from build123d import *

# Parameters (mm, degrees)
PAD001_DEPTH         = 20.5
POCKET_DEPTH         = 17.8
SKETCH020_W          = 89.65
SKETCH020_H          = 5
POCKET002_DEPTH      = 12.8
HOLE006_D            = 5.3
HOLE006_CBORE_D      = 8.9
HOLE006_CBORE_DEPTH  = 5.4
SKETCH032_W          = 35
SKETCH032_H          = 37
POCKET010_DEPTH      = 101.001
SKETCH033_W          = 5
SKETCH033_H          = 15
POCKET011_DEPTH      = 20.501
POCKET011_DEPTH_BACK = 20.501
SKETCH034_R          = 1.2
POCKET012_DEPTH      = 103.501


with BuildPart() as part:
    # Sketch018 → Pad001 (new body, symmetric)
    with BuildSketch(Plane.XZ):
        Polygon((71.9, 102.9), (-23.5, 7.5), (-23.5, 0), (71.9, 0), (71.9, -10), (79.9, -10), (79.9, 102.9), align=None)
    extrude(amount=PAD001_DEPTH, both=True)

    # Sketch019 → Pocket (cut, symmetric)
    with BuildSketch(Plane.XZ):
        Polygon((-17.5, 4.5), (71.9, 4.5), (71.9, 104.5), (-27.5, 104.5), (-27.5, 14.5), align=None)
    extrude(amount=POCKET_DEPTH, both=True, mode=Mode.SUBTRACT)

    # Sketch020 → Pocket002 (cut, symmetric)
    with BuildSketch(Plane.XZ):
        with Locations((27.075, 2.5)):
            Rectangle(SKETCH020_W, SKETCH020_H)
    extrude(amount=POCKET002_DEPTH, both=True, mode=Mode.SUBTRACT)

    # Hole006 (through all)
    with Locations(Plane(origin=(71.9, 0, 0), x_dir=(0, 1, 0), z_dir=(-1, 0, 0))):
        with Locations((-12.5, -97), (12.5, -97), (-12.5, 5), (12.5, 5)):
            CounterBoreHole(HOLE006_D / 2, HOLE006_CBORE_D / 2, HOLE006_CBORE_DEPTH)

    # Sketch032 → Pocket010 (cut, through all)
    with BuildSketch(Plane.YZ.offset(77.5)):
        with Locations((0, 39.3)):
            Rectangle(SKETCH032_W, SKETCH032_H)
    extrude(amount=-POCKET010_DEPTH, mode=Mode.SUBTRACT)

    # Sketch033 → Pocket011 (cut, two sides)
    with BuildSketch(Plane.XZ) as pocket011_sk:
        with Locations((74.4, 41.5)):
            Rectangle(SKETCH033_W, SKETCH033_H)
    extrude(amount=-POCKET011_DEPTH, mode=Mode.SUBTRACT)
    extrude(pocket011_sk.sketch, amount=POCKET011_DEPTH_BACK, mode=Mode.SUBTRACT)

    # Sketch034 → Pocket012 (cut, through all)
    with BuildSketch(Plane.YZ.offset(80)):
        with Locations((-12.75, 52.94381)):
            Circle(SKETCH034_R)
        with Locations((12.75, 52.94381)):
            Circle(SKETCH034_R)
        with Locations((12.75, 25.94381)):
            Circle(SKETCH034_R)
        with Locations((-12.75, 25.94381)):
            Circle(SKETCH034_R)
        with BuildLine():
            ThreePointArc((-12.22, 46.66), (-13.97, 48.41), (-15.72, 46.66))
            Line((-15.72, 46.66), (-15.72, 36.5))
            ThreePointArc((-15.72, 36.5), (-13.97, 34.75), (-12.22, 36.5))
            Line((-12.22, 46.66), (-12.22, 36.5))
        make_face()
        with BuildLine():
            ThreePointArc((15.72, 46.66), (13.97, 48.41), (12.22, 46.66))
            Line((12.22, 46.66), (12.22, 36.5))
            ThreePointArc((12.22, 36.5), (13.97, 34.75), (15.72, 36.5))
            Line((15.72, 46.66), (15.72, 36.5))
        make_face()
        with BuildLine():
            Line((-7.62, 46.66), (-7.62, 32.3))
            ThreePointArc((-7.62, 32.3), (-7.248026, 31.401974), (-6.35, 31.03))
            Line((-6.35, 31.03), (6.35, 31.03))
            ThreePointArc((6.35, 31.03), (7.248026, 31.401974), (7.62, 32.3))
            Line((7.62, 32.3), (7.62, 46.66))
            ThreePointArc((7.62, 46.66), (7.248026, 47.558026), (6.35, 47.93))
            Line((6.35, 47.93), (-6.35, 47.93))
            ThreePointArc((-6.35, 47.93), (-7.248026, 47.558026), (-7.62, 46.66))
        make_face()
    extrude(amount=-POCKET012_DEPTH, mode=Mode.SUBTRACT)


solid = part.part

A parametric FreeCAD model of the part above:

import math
import FreeCAD as App
import Part
import Sketcher
Q = App.Units.Quantity

doc = App.newDocument("Part")
body = doc.addObject("PartDesign::Body", "Body")

sketch1 = doc.addObject("Sketcher::SketchObject", "Sketch")
body.addObject(sketch1)
sketch1.AttachmentSupport = (doc.XZ_Plane, [""])
sketch1.MapMode = "FlatFace"
sketch1.addGeometry([
    Part.LineSegment(App.Vector(71.9, 102.9, 0), App.Vector(-23.5, 7.5, 0)),
    Part.LineSegment(App.Vector(-23.5, 7.5, 0), App.Vector(-23.5, 0, 0)),
    Part.LineSegment(App.Vector(-23.5, 0, 0), App.Vector(71.9, 0, 0)),
    Part.LineSegment(App.Vector(71.9, 0, 0), App.Vector(71.9, -10, 0)),
    Part.LineSegment(App.Vector(71.9, -10, 0), App.Vector(79.9, -10, 0)),
    Part.LineSegment(App.Vector(79.9, -10, 0), App.Vector(79.9, 102.9, 0)),
    Part.LineSegment(App.Vector(79.9, 102.9, 0), App.Vector(71.9, 102.9, 0)),
], False)
sketch1.addConstraint([
    Sketcher.Constraint("Coincident", 0, 2, 1, 1),
    Sketcher.Constraint("Coincident", 1, 2, 2, 1),
    Sketcher.Constraint("Coincident", 2, 2, 3, 1),
    Sketcher.Constraint("Coincident", 3, 2, 4, 1),
    Sketcher.Constraint("Coincident", 4, 2, 5, 1),
    Sketcher.Constraint("Coincident", 5, 2, 6, 1),
    Sketcher.Constraint("Coincident", 6, 2, 0, 1),
    Sketcher.Constraint("Vertical", 1),
    Sketcher.Constraint("Horizontal", 2),
    Sketcher.Constraint("Vertical", 3),
    Sketcher.Constraint("Horizontal", 4),
    Sketcher.Constraint("Vertical", 5),
    Sketcher.Constraint("Horizontal", 6),
    Sketcher.Constraint("PointOnObject", 1, 2, -1),
    Sketcher.Constraint("Vertical", 3, 2, 6, 2),
    Sketcher.Constraint("DistanceX", 4, 1, 4, 2, 8.0),
    Sketcher.Constraint("DistanceY", 3, 2, 3, 1, 10.0),
    Sketcher.Constraint("Angle", 0, Q("-135 deg")),
    Sketcher.Constraint("DistanceX", 2, 1, 2, 2, 95.4),
    Sketcher.Constraint("DistanceY", 1, 2, 1, 1, 7.5),
    Sketcher.Constraint("DistanceX", 0, 2, -1, 1, 23.5),
])
pad1 = doc.addObject("PartDesign::Pad", "Pad")
body.addObject(pad1)
pad1.Profile = sketch1
pad1.Length = 41
pad1.Midplane = True

sketch2 = doc.addObject("Sketcher::SketchObject", "Sketch001")
body.addObject(sketch2)
sketch2.AttachmentSupport = (doc.XZ_Plane, [""])
sketch2.MapMode = "FlatFace"
sketch2.addGeometry([
    Part.LineSegment(App.Vector(-17.5, 4.5, 0), App.Vector(71.9, 4.5, 0)),
    Part.LineSegment(App.Vector(71.9, 4.5, 0), App.Vector(71.9, 104.5, 0)),
    Part.LineSegment(App.Vector(71.9, 104.5, 0), App.Vector(-27.5, 104.5, 0)),
    Part.LineSegment(App.Vector(-27.5, 104.5, 0), App.Vector(-27.5, 14.5, 0)),
    Part.LineSegment(App.Vector(-27.5, 14.5, 0), App.Vector(-17.5, 4.5, 0)),
], False)
sketch2.addConstraint([
    Sketcher.Constraint("Coincident", 0, 2, 1, 1),
    Sketcher.Constraint("Coincident", 1, 2, 2, 1),
    Sketcher.Constraint("Coincident", 2, 2, 3, 1),
    Sketcher.Constraint("Coincident", 3, 2, 4, 1),
    Sketcher.Constraint("Coincident", 4, 2, 0, 1),
    Sketcher.Constraint("Horizontal", 0),
    Sketcher.Constraint("Vertical", 1),
    Sketcher.Constraint("Horizontal", 2),
    Sketcher.Constraint("Vertical", 3),
    Sketcher.Constraint("DistanceY", 1, 1, 1, 2, 100.0),
    Sketcher.Constraint("DistanceY", 3, 2, 3, 1, 90.0),
    Sketcher.Constraint("Angle", 4, Q("-45 deg")),
    Sketcher.Constraint("DistanceX", 0, 1, 0, 2, 89.4),
    Sketcher.Constraint("DistanceX", -1, 1, 0, 2, 71.9),
    Sketcher.Constraint("DistanceY", -1, 1, 0, 2, 4.5),
])
pocket1 = doc.addObject("PartDesign::Pocket", "Pocket")
body.addObject(pocket1)
pocket1.Profile = sketch2
pocket1.Length = 35.6
pocket1.Midplane = True

sketch3 = doc.addObject("Sketcher::SketchObject", "Sketch002")
body.addObject(sketch3)
sketch3.AttachmentSupport = (doc.XZ_Plane, [""])
sketch3.MapMode = "FlatFace"
sketch3.addGeometry([
    Part.LineSegment(App.Vector(-17.75, 5, 0), App.Vector(-17.75, 0, 0)),
    Part.LineSegment(App.Vector(-17.75, 0, 0), App.Vector(71.9, 0, 0)),
    Part.LineSegment(App.Vector(71.9, 0, 0), App.Vector(71.9, 5, 0)),
    Part.LineSegment(App.Vector(71.9, 5, 0), App.Vector(-17.75, 5, 0)),
], False)
sketch3.addConstraint([
    Sketcher.Constraint("Coincident", 0, 2, 1, 1),
    Sketcher.Constraint("Coincident", 1, 2, 2, 1),
    Sketcher.Constraint("Coincident", 2, 2, 3, 1),
    Sketcher.Constraint("Coincident", 3, 2, 0, 1),
    Sketcher.Constraint("Vertical", 0),
    Sketcher.Constraint("Horizontal", 1),
    Sketcher.Constraint("Vertical", 2),
    Sketcher.Constraint("Horizontal", 3),
    Sketcher.Constraint("PointOnObject", 0, 2, -1),
    Sketcher.Constraint("DistanceY", 0, 2, 0, 1, 5.0),
    Sketcher.Constraint("DistanceX", 1, 1, 1, 2, 89.65),
    Sketcher.Constraint("DistanceX", -1, 1, 1, 2, 71.9),
])
pocket2 = doc.addObject("PartDesign::Pocket", "Pocket001")
body.addObject(pocket2)
pocket2.Profile = sketch3
pocket2.Length = 25.6
pocket2.Midplane = True

sketch4 = doc.addObject("Sketcher::SketchObject", "Sketch003")
body.addObject(sketch4)
sketch4.AttachmentSupport = (doc.YZ_Plane, [""])
sketch4.MapMode = "FlatFace"
sketch4.AttachmentOffset = App.Placement(App.Vector(0, 0, 71.9), App.Rotation())
sketch4.addGeometry([
    Part.Circle(App.Vector(-12.5, 97, 0), App.Vector(0, 0, 1), 2.65),
    Part.Circle(App.Vector(12.5, 97, 0), App.Vector(0, 0, 1), 2.65),
    Part.Circle(App.Vector(-12.5, -5, 0), App.Vector(0, 0, 1), 2.65),
    Part.Circle(App.Vector(12.5, -5, 0), App.Vector(0, 0, 1), 2.65),
], False)
sketch4.addConstraint([
    Sketcher.Constraint("Equal", 0, 1),
    Sketcher.Constraint("Equal", 1, 2),
    Sketcher.Constraint("Equal", 2, 3),
    Sketcher.Constraint("Symmetric", 0, 3, 1, 3, -2),
    Sketcher.Constraint("Symmetric", 2, 3, 3, 3, -2),
    Sketcher.Constraint("Vertical", 0, 3, 2, 3),
    Sketcher.Constraint("Diameter", 0, 5.3),
    Sketcher.Constraint("DistanceY", -1, 1, 0, 3, 97.0),
    Sketcher.Constraint("DistanceY", 2, 3, -1, 1, 5.0),
    Sketcher.Constraint("DistanceX", 0, 3, 1, 3, 25.0),
])
doc.recompute()
hole = doc.addObject("PartDesign::Hole", "Hole")
body.addObject(hole)
hole.Profile = sketch4
hole.ThreadType = "None"
hole.Diameter = 5.3
hole.DepthType = "ThroughAll"
hole.HoleCutType = "Counterbore"
hole.HoleCutDiameter = 8.9
hole.HoleCutDepth = 5.4
hole.Reversed = True

sketch5 = doc.addObject("Sketcher::SketchObject", "Sketch004")
body.addObject(sketch5)
sketch5.AttachmentSupport = (doc.YZ_Plane, [""])
sketch5.MapMode = "FlatFace"
sketch5.AttachmentOffset = App.Placement(App.Vector(0, 0, 77.5), App.Rotation())
sketch5.addGeometry([
    Part.LineSegment(App.Vector(-17.5, 57.8, 0), App.Vector(-17.5, 20.8, 0)),
    Part.LineSegment(App.Vector(-17.5, 20.8, 0), App.Vector(17.5, 20.8, 0)),
    Part.LineSegment(App.Vector(17.5, 20.8, 0), App.Vector(17.5, 57.8, 0)),
    Part.LineSegment(App.Vector(17.5, 57.8, 0), App.Vector(-17.5, 57.8, 0)),
], False)
sketch5.addConstraint([
    Sketcher.Constraint("Coincident", 0, 2, 1, 1),
    Sketcher.Constraint("Coincident", 1, 2, 2, 1),
    Sketcher.Constraint("Coincident", 2, 2, 3, 1),
    Sketcher.Constraint("Coincident", 3, 2, 0, 1),
    Sketcher.Constraint("Vertical", 0),
    Sketcher.Constraint("Horizontal", 1),
    Sketcher.Constraint("Vertical", 2),
    Sketcher.Constraint("Horizontal", 3),
    Sketcher.Constraint("DistanceX", 1, 1, 1, 2, 35.0),
    Sketcher.Constraint("DistanceY", 0, 2, 0, 1, 37.0),
    Sketcher.Constraint("DistanceX", 0, 2, -1, 1, 17.5),
    Sketcher.Constraint("DistanceY", -1, 1, 0, 2, 20.8),
])
pocket3 = doc.addObject("PartDesign::Pocket", "Pocket002")
body.addObject(pocket3)
pocket3.Profile = sketch5
pocket3.Type = "ThroughAll"

sketch6 = doc.addObject("Sketcher::SketchObject", "Sketch005")
body.addObject(sketch6)
sketch6.AttachmentSupport = (doc.XZ_Plane, [""])
sketch6.MapMode = "FlatFace"
sketch6.addGeometry([
    Part.LineSegment(App.Vector(71.9, 49, 0), App.Vector(71.9, 34, 0)),
    Part.LineSegment(App.Vector(71.9, 34, 0), App.Vector(76.9, 34, 0)),
    Part.LineSegment(App.Vector(76.9, 34, 0), App.Vector(76.9, 49, 0)),
    Part.LineSegment(App.Vector(76.9, 49, 0), App.Vector(71.9, 49, 0)),
], False)
sketch6.addConstraint([
    Sketcher.Constraint("Coincident", 0, 2, 1, 1),
    Sketcher.Constraint("Coincident", 1, 2, 2, 1),
    Sketcher.Constraint("Coincident", 2, 2, 3, 1),
    Sketcher.Constraint("Coincident", 3, 2, 0, 1),
    Sketcher.Constraint("Vertical", 0),
    Sketcher.Constraint("Horizontal", 1),
    Sketcher.Constraint("Vertical", 2),
    Sketcher.Constraint("Horizontal", 3),
    Sketcher.Constraint("DistanceX", 1, 1, 1, 2, 5.0),
    Sketcher.Constraint("DistanceY", 0, 2, 0, 1, 15.0),
    Sketcher.Constraint("DistanceY", -1, 1, 0, 2, 34.0),
    Sketcher.Constraint("DistanceX", -1, 1, 0, 2, 71.9),
])
pocket4 = doc.addObject("PartDesign::Pocket", "Pocket003")
body.addObject(pocket4)
pocket4.Profile = sketch6
pocket4.Type = "ThroughAll"
pocket4.Midplane = True

sketch7 = doc.addObject("Sketcher::SketchObject", "Sketch006")
body.addObject(sketch7)
sketch7.AttachmentSupport = (doc.YZ_Plane, [""])
sketch7.MapMode = "FlatFace"
sketch7.AttachmentOffset = App.Placement(App.Vector(0, 0, 80), App.Rotation())
sketch7.addGeometry([
    Part.Circle(App.Vector(-12.75, 52.94381, 0), App.Vector(0, 0, 1), 1.2),
    Part.Circle(App.Vector(12.75, 52.94381, 0), App.Vector(0, 0, 1), 1.2),
    Part.Circle(App.Vector(12.75, 25.94381, 0), App.Vector(0, 0, 1), 1.2),
    Part.Circle(App.Vector(-12.75, 25.94381, 0), App.Vector(0, 0, 1), 1.2),
    Part.ArcOfCircle(Part.Circle(App.Vector(-13.97, 46.66, 0), App.Vector(0, 0, 1), 1.75), math.radians(0), math.radians(180)),
    Part.LineSegment(App.Vector(-15.72, 46.66, 0), App.Vector(-15.72, 36.5, 0)),
    Part.ArcOfCircle(Part.Circle(App.Vector(-13.97, 36.5, 0), App.Vector(0, 0, 1), 1.75), math.radians(180), math.radians(360)),
    Part.LineSegment(App.Vector(-12.22, 36.5, 0), App.Vector(-12.22, 46.66, 0)),
    Part.ArcOfCircle(Part.Circle(App.Vector(13.97, 46.66, 0), App.Vector(0, 0, 1), 1.75), math.radians(0), math.radians(180)),
    Part.LineSegment(App.Vector(12.22, 46.66, 0), App.Vector(12.22, 36.5, 0)),
    Part.ArcOfCircle(Part.Circle(App.Vector(13.97, 36.5, 0), App.Vector(0, 0, 1), 1.75), math.radians(180), math.radians(360)),
    Part.LineSegment(App.Vector(15.72, 36.5, 0), App.Vector(15.72, 46.66, 0)),
    Part.LineSegment(App.Vector(-7.62, 46.66, 0), App.Vector(-7.62, 32.3, 0)),
    Part.ArcOfCircle(Part.Circle(App.Vector(-6.350001, 32.299999, 0), App.Vector(0, 0, 1), 1.269999), math.radians(179.99994), math.radians(270.00006)),
    Part.LineSegment(App.Vector(-6.35, 31.03, 0), App.Vector(6.35, 31.03, 0)),
    Part.ArcOfCircle(Part.Circle(App.Vector(6.350001, 32.299999, 0), App.Vector(0, 0, 1), 1.269999), math.radians(-90.00006), math.radians(0.00006)),
    Part.LineSegment(App.Vector(7.62, 32.3, 0), App.Vector(7.62, 46.66, 0)),
    Part.ArcOfCircle(Part.Circle(App.Vector(6.350001, 46.660001, 0), App.Vector(0, 0, 1), 1.269999), math.radians(-0.00006), math.radians(90.00006)),
    Part.LineSegment(App.Vector(6.35, 47.93, 0), App.Vector(-6.35, 47.93, 0)),
    Part.ArcOfCircle(Part.Circle(App.Vector(-6.350001, 46.660001, 0), App.Vector(0, 0, 1), 1.269999), math.radians(89.99994), math.radians(180.00006)),
], False)
sketch7.addConstraint([
    Sketcher.Constraint("Tangent", 4, 2, 5, 1),
    Sketcher.Constraint("Tangent", 5, 2, 6, 1),
    Sketcher.Constraint("Tangent", 6, 2, 7, 1),
    Sketcher.Constraint("Tangent", 7, 2, 4, 1),
    Sketcher.Constraint("Tangent", 8, 2, 9, 1),
    Sketcher.Constraint("Tangent", 9, 2, 10, 1),
    Sketcher.Constraint("Tangent", 10, 2, 11, 1),
    Sketcher.Constraint("Tangent", 11, 2, 8, 1),
    Sketcher.Constraint("Tangent", 12, 2, 13, 1),
    Sketcher.Constraint("Tangent", 13, 2, 14, 1),
    Sketcher.Constraint("Tangent", 14, 2, 15, 1),
    Sketcher.Constraint("Tangent", 15, 2, 16, 1),
    Sketcher.Constraint("Tangent", 16, 2, 17, 1),
    Sketcher.Constraint("Tangent", 17, 2, 18, 1),
    Sketcher.Constraint("Tangent", 18, 2, 19, 1),
    Sketcher.Constraint("Tangent", 19, 2, 12, 1),
    Sketcher.Constraint("Vertical", 5),
    Sketcher.Constraint("Vertical", 7),
    Sketcher.Constraint("Vertical", 9),
    Sketcher.Constraint("Vertical", 11),
    Sketcher.Constraint("Vertical", 12),
    Sketcher.Constraint("Horizontal", 14),
    Sketcher.Constraint("Vertical", 16),
    Sketcher.Constraint("Horizontal", 18),
    Sketcher.Constraint("Equal", 0, 1),
    Sketcher.Constraint("Equal", 1, 2),
    Sketcher.Constraint("Equal", 2, 3),
    Sketcher.Constraint("Equal", 6, 8),
    Sketcher.Constraint("Equal", 13, 15),
    Sketcher.Constraint("Equal", 15, 17),
    Sketcher.Constraint("Equal", 17, 19),
    Sketcher.Constraint("Symmetric", 0, 3, 1, 3, -2),
    Sketcher.Constraint("Symmetric", 2, 3, 3, 3, -2),
    Sketcher.Constraint("Symmetric", 4, 3, 8, 3, -2),
    Sketcher.Constraint("Horizontal", 6, 3, 10, 3),
    Sketcher.Constraint("Horizontal", 8, 3, 17, 3),
    Sketcher.Constraint("Vertical", 1, 3, 2, 3),
    Sketcher.Constraint("Diameter", 0, 2.4),
    Sketcher.Constraint("Radius", 4, 1.75),
    Sketcher.Constraint("Radius", 13, 1.269999),
    Sketcher.Constraint("DistanceX", 14, 1, 14, 2, 12.7),
    Sketcher.Constraint("DistanceY", 2, 3, 1, 3, 27.0),
    Sketcher.Constraint("DistanceY", 5, 2, 5, 1, 10.16),
    Sketcher.Constraint("DistanceY", 12, 2, 12, 1, 14.36),
    Sketcher.Constraint("DistanceY", -1, 1, 6, 3, 36.5),
    Sketcher.Constraint("DistanceX", 0, 3, 1, 3, 25.5),
    Sketcher.Constraint("DistanceX", 3, 3, 13, 3, 6.399999),
    Sketcher.Constraint("DistanceX", 6, 2, 12, 2, 4.6),
    Sketcher.Constraint("DistanceY", -1, 1, 0, 3, 52.94381),
])
pocket5 = doc.addObject("PartDesign::Pocket", "Pocket004")
body.addObject(pocket5)
pocket5.Profile = sketch7
pocket5.Type = "ThroughAll"

doc.recompute()
